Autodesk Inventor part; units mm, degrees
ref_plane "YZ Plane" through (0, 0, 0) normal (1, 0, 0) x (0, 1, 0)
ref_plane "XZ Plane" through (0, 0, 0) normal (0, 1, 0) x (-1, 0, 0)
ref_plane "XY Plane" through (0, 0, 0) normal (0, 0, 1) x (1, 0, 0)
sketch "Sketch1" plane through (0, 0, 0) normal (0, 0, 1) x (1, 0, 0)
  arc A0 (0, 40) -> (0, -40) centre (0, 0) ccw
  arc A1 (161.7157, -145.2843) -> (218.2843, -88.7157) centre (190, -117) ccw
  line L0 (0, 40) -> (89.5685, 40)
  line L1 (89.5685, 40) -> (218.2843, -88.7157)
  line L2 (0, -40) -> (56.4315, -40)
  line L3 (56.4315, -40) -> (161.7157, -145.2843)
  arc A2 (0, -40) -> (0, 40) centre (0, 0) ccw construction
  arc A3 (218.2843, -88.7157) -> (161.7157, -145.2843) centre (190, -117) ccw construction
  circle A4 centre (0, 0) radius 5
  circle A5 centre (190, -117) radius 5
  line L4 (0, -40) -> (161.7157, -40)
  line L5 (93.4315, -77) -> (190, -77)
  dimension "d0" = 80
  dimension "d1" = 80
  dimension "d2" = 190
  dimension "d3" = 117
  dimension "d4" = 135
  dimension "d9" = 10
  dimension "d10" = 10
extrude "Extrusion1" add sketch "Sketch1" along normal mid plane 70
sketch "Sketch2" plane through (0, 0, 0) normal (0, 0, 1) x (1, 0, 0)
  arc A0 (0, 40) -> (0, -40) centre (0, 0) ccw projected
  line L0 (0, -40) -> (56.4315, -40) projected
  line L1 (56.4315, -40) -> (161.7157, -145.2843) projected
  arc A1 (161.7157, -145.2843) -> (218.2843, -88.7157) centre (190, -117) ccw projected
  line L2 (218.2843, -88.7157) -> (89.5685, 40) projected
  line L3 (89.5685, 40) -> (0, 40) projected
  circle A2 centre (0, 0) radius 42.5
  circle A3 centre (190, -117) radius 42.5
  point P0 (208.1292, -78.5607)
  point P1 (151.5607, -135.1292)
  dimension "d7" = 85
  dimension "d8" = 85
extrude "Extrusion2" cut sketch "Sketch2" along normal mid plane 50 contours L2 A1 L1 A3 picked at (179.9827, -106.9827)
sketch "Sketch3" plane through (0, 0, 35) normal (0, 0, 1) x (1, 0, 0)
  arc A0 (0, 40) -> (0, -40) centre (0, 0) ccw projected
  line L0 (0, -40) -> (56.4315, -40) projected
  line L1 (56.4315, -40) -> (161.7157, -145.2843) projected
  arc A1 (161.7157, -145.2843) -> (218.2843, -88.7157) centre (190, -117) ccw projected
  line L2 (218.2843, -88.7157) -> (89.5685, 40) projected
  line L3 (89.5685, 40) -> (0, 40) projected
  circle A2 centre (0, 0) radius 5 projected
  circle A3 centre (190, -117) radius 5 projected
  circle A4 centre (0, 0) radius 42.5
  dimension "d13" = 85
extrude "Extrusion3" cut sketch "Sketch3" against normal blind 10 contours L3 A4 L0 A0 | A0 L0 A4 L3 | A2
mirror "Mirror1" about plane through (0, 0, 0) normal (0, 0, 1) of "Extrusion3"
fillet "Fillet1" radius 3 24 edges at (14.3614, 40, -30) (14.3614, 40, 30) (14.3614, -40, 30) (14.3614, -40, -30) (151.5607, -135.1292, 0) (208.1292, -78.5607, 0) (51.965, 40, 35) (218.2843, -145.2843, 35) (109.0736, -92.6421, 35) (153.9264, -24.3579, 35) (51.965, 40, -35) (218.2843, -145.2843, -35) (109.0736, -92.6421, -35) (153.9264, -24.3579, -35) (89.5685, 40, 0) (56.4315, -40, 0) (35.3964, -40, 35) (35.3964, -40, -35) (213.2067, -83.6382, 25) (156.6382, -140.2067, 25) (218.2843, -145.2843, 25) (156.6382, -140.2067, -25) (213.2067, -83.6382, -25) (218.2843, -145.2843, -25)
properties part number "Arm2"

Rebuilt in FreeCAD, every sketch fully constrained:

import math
import FreeCAD as App
import Part
import Sketcher
from FreeCAD import Vector
Q = App.Units.Quantity


def edges_at(feature, points):
    """Names of the edges that pass closest to the given points."""
    edges = feature.Shape.Edges
    near = lambda p: min(range(len(edges)), key=lambda i: edges[i].distToShape(Part.Vertex(*p))[0])
    return sorted({f"Edge{near(p) + 1}" for p in points})

doc = App.newDocument("Part")
body = doc.addObject("PartDesign::Body", "Body")

# Sketch on XY plane
sketch1 = body.newObject("Sketcher::SketchObject", "Sketch")
sketch1.AttachmentSupport = (doc.getObject("XY_Plane"), [""])
sketch1.MapMode = "FlatFace"
sketch1.addGeometry(Part.LineSegment(Vector(90, 40, 0), Vector(0, 40, 0)), False)
sketch1.addGeometry(Part.ArcOfCircle(Part.Circle(Vector(0, 0, 0), Vector(0, 0, 1), 40), math.radians(90), math.radians(270)), False)
sketch1.addGeometry(Part.LineSegment(Vector(0, -40, 0), Vector(56, -40, 0)), False)
sketch1.addGeometry(Part.LineSegment(Vector(56, -40, 0), Vector(162, -145, 0)), False)
sketch1.addGeometry(Part.ArcOfCircle(Part.Circle(Vector(190, -117, 0), Vector(0, 0, 1), 40), math.radians(-135), math.radians(45)), False)
sketch1.addGeometry(Part.LineSegment(Vector(218, -89, 0), Vector(90, 40, 0)), False)
sketch1.addGeometry(Part.Circle(Vector(190, -117, 0), Vector(0, 0, 1), 5), False)
sketch1.addGeometry(Part.Circle(Vector(0, 0, 0), Vector(0, 0, 1), 5), False)
sketch1.addConstraint(Sketcher.Constraint("Tangent", 0, 2, 1, 1))
sketch1.addConstraint(Sketcher.Constraint("Tangent", 1, 2, 2, 1))
sketch1.addConstraint(Sketcher.Constraint("Coincident", 2, 2, 3, 1))
sketch1.addConstraint(Sketcher.Constraint("Tangent", 3, 2, 4, 1))
sketch1.addConstraint(Sketcher.Constraint("Tangent", 4, 2, 5, 1))
sketch1.addConstraint(Sketcher.Constraint("Coincident", 5, 2, 0, 1))
sketch1.addConstraint(Sketcher.Constraint("Horizontal", 0))
sketch1.addConstraint(Sketcher.Constraint("Horizontal", 2))
sketch1.addConstraint(Sketcher.Constraint("Coincident", 1, 3, -1, 1))
sketch1.addConstraint(Sketcher.Constraint("Coincident", 7, 3, -1, 1))
sketch1.addConstraint(Sketcher.Constraint("Coincident", 6, 3, 4, 3))
sketch1.addConstraint(Sketcher.Constraint("Equal", 1, 4))
sketch1.addConstraint(Sketcher.Constraint("Equal", 6, 7))
sketch1.addConstraint(Sketcher.Constraint("Parallel", 3, 5))
sketch1.addConstraint(Sketcher.Constraint("Diameter", 6, Q("10 mm")))
sketch1.addConstraint(Sketcher.Constraint("Radius", 1, Q("40 mm")))
sketch1.addConstraint(Sketcher.Constraint("Angle", 5, Q("135 deg")))
sketch1.addConstraint(Sketcher.Constraint("DistanceX", -1, 1, 4, 3, Q("190 mm")))
sketch1.addConstraint(Sketcher.Constraint("DistanceY", 4, 3, -1, 1, Q("117 mm")))
pad1 = body.newObject("PartDesign::Pad", "Pad")
pad1.Profile = sketch1
pad1.Length = 70
pad1.Midplane = True

# Sketch on XY plane
sketch2 = body.newObject("Sketcher::SketchObject", "Sketch001")
sketch2.AttachmentSupport = (doc.getObject("XY_Plane"), [""])
sketch2.MapMode = "FlatFace"
sketch2.addGeometry(Part.LineSegment(Vector(218, -89, 0), Vector(208, -79, 0)), False)
sketch2.addGeometry(Part.ArcOfCircle(Part.Circle(Vector(190, -117, 0), Vector(0, 0, 1), 42), math.radians(65), math.radians(205)), False)
sketch2.addGeometry(Part.LineSegment(Vector(152, -135, 0), Vector(162, -145, 0)), False)
sketch2.addGeometry(Part.ArcOfCircle(Part.Circle(Vector(190, -117, 0), Vector(0, 0, 1), 40), math.radians(-135), math.radians(45)), False)
sketch2.addConstraint(Sketcher.Constraint("Coincident", 0, 2, 1, 1))
sketch2.addConstraint(Sketcher.Constraint("Coincident", 1, 2, 2, 1))
sketch2.addConstraint(Sketcher.Constraint("Tangent", 2, 2, 3, 1))
sketch2.addConstraint(Sketcher.Constraint("Tangent", 3, 2, 0, 1))
sketch2.addConstraint(Sketcher.Constraint("Coincident", 3, 3, 1, 3))
sketch2.addConstraint(Sketcher.Constraint("Parallel", 0, 2))
sketch2.addConstraint(Sketcher.Constraint("Radius", 1, Q("42.5 mm")))
sketch2.addConstraint(Sketcher.Constraint("Radius", 3, Q("40 mm")))
sketch2.addConstraint(Sketcher.Constraint("Angle", 0, Q("135 deg")))
sketch2.addConstraint(Sketcher.Constraint("DistanceX", -1, 1, 1, 3, Q("190 mm")))
sketch2.addConstraint(Sketcher.Constraint("DistanceY", 1, 3, -1, 1, Q("117 mm")))
pocket1 = body.newObject("PartDesign::Pocket", "Pocket")
pocket1.Profile = sketch2
pocket1.Length = 50
pocket1.Midplane = True

# Sketch on XY plane
sketch3 = body.newObject("Sketcher::SketchObject", "Sketch002")
sketch3.AttachmentSupport = (doc.getObject("XY_Plane"), [""])
sketch3.MapMode = "FlatFace"
sketch3.AttachmentOffset = App.Placement(Vector(0, 0, 35), App.Rotation())
sketch3.addGeometry(Part.Circle(Vector(0, 0, 0), Vector(0, 0, 1), 42), False)
sketch3.addConstraint(Sketcher.Constraint("Coincident", 0, 3, -1, 1))
sketch3.addConstraint(Sketcher.Constraint("Diameter", 0, Q("85 mm")))
pocket2 = body.newObject("PartDesign::Pocket", "Pocket001")
pocket2.Profile = sketch3
pocket2.Length = 10
doc.recompute()

mirrored = body.newObject("PartDesign::Mirrored", "Mirrored")
mirrored.Originals = [pocket2]
mirrored.MirrorPlane = (doc.getObject("XY_Plane"), [""])
body.Tip = mirrored
doc.recompute()

fillet = body.newObject("PartDesign::Fillet", "Fillet")
fillet.Base = (mirrored, edges_at(mirrored, [
    (14.361, 40, -30),
    (14.361, 40, 30),
    (14.361, -40, 30),
    (14.361, -40, -30),
    (151.561, -135.129, 0),
    (208.129, -78.561, 0),
    (51.965, 40, 35),
    (218.284, -145.284, 35),
    (109.074, -92.642, 35),
    (153.926, -24.358, 35),
    (51.965, 40, -35),
    (218.284, -145.284, -35),
    (109.074, -92.642, -35),
    (153.926, -24.358, -35),
    (89.569, 40, 0),
    (56.431, -40, 0),
    (35.396, -40, 35),
    (35.396, -40, -35),
    (213.207, -83.638, 25),
    (156.638, -140.207, 25),
    (218.284, -145.284, 25),
    (156.638, -140.207, -25),
    (213.207, -83.638, -25),
    (218.284, -145.284, -25),
]))
fillet.Radius = 3

doc.recompute()
